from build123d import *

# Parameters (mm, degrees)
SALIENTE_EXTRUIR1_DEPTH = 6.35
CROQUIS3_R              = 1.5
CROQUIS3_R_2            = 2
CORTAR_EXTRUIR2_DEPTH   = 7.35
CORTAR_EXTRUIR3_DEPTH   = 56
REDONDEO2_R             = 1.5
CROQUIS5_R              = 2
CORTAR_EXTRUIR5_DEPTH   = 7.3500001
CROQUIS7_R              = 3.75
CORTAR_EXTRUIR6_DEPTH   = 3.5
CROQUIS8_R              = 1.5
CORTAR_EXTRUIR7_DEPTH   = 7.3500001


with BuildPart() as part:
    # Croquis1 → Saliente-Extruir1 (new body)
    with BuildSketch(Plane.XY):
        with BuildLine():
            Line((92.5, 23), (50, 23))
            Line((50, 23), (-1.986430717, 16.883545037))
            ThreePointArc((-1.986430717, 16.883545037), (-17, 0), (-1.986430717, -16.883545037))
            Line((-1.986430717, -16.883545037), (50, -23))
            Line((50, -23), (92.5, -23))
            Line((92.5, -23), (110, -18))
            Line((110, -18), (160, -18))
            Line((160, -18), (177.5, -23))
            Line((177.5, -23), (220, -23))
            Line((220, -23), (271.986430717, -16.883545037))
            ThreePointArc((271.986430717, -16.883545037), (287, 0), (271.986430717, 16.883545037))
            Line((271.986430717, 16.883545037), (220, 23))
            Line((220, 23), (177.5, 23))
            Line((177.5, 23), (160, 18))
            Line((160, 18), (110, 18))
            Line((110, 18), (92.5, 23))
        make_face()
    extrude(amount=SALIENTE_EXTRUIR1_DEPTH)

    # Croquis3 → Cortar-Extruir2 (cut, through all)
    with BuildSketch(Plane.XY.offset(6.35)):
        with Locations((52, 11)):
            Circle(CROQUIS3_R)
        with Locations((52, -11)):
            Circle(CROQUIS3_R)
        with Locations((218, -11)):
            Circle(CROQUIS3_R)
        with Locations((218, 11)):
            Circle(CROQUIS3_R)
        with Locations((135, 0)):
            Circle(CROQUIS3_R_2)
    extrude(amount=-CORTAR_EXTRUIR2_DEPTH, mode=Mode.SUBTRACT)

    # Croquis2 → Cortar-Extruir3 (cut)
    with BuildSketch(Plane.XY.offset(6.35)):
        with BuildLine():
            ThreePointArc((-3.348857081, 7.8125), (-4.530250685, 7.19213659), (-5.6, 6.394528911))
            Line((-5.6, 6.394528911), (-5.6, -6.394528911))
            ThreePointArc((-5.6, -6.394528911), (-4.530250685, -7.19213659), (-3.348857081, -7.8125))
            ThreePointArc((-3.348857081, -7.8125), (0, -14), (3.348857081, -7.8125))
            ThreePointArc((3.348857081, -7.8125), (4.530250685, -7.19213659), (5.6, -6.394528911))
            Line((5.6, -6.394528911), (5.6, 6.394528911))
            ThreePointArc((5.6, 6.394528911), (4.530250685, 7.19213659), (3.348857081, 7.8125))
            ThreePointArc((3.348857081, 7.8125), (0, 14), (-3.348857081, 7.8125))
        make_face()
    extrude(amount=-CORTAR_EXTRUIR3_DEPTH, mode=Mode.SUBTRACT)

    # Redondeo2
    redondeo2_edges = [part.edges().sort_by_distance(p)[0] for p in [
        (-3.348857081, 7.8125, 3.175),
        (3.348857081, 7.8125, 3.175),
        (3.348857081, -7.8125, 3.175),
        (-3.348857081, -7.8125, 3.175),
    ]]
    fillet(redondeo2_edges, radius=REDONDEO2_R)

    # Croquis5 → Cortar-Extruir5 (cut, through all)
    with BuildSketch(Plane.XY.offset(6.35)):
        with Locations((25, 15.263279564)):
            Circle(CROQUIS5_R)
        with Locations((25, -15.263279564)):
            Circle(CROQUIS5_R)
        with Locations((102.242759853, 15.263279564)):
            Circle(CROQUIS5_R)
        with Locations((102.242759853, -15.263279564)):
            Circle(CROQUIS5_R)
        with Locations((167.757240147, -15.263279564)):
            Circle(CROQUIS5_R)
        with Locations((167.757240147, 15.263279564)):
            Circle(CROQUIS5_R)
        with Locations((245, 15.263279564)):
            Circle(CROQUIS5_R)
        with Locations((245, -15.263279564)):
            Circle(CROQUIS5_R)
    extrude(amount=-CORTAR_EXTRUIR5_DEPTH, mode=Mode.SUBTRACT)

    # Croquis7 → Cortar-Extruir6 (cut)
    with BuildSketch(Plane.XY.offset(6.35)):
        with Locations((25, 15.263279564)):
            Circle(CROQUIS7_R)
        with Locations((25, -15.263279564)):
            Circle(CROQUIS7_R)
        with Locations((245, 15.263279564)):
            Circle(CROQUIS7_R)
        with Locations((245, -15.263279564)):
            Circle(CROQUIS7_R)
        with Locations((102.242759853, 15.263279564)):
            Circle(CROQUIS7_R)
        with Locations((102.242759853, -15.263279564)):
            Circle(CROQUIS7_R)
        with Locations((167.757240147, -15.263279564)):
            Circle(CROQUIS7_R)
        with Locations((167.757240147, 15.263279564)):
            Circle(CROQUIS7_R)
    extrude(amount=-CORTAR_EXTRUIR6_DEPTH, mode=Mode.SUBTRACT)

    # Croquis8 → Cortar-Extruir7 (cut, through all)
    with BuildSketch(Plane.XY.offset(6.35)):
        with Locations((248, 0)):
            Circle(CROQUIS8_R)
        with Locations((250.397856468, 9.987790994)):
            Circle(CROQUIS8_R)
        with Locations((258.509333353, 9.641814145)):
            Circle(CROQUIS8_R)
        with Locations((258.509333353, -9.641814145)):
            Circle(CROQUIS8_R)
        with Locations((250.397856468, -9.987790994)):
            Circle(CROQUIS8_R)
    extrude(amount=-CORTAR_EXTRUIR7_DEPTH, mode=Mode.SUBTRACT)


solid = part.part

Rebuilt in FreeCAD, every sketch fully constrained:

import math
import FreeCAD as App
import Part
import Sketcher
from FreeCAD import Vector
Q = App.Units.Quantity


def edges_at(feature, points):
    """Names of the edges that pass closest to the given points."""
    edges = feature.Shape.Edges
    near = lambda p: min(range(len(edges)), key=lambda i: edges[i].distToShape(Part.Vertex(*p))[0])
    return sorted({f"Edge{near(p) + 1}" for p in points})

doc = App.newDocument("Part")
body = doc.addObject("PartDesign::Body", "Body")

# Sketch on XY plane
sketch1 = doc.addObject("Sketcher::SketchObject", "Sketch")
body.addObject(sketch1)
sketch1.AttachmentSupport = (doc.XY_Plane, [""])
sketch1.MapMode = "FlatFace"
sketch1.addGeometry([
    Part.LineSegment(Vector(92.5, 23, 0), Vector(50, 23, 0)),  # 0
    Part.LineSegment(Vector(50, 23, 0), Vector(-1.986431, 16.883545, 0)),  # 1
    Part.ArcOfCircle(Part.Circle(Vector(0, 0, 0), Vector(0, 0, 1), 17), math.radians(96.710276), math.radians(263.289724)),  # 2
    Part.LineSegment(Vector(-1.986431, -16.883545, 0), Vector(50, -23, 0)),  # 3
    Part.LineSegment(Vector(50, -23, 0), Vector(92.5, -23, 0)),  # 4
    Part.LineSegment(Vector(92.5, -23, 0), Vector(110, -18, 0)),  # 5
    Part.LineSegment(Vector(110, -18, 0), Vector(160, -18, 0)),  # 6
    Part.LineSegment(Vector(160, -18, 0), Vector(177.5, -23, 0)),  # 7
    Part.LineSegment(Vector(177.5, -23, 0), Vector(220, -23, 0)),  # 8
    Part.LineSegment(Vector(220, -23, 0), Vector(271.986431, -16.883545, 0)),  # 9
    Part.ArcOfCircle(Part.Circle(Vector(270, 0, 0), Vector(0, 0, 1), 17), math.radians(-83.289724), math.radians(83.289724)),  # 10
    Part.LineSegment(Vector(271.986431, 16.883545, 0), Vector(220, 23, 0)),  # 11
    Part.LineSegment(Vector(220, 23, 0), Vector(177.5, 23, 0)),  # 12
    Part.LineSegment(Vector(177.5, 23, 0), Vector(160, 18, 0)),  # 13
    Part.LineSegment(Vector(160, 18, 0), Vector(110, 18, 0)),  # 14
    Part.LineSegment(Vector(110, 18, 0), Vector(92.5, 23, 0)),  # 15
], False)
sketch1.addConstraint([
    Sketcher.Constraint("Coincident", 0, 2, 1, 1),
    Sketcher.Constraint("Tangent", 1, 2, 2, 1),
    Sketcher.Constraint("Tangent", 2, 2, 3, 1),
    Sketcher.Constraint("Coincident", 3, 2, 4, 1),
    Sketcher.Constraint("Coincident", 4, 2, 5, 1),
    Sketcher.Constraint("Coincident", 5, 2, 6, 1),
    Sketcher.Constraint("Coincident", 6, 2, 7, 1),
    Sketcher.Constraint("Coincident", 7, 2, 8, 1),
    Sketcher.Constraint("Coincident", 8, 2, 9, 1),
    Sketcher.Constraint("Tangent", 9, 2, 10, 1),
    Sketcher.Constraint("Tangent", 10, 2, 11, 1),
    Sketcher.Constraint("Coincident", 11, 2, 12, 1),
    Sketcher.Constraint("Coincident", 12, 2, 13, 1),
    Sketcher.Constraint("Coincident", 13, 2, 14, 1),
    Sketcher.Constraint("Coincident", 14, 2, 15, 1),
    Sketcher.Constraint("Coincident", 15, 2, 0, 1),
    Sketcher.Constraint("Horizontal", 0),
    Sketcher.Constraint("Horizontal", 4),
    Sketcher.Constraint("Horizontal", 6),
    Sketcher.Constraint("Horizontal", 8),
    Sketcher.Constraint("Horizontal", 12),
    Sketcher.Constraint("Horizontal", 14),
    Sketcher.Constraint("Coincident", 2, 3, -1, 1),
    Sketcher.Constraint("Equal", 2, 10),
    Sketcher.Constraint("Symmetric", 0, 2, 3, 2, -1),
    Sketcher.Constraint("Symmetric", 9, 2, 10, 2, -1),
    Sketcher.Constraint("Symmetric", 7, 2, 12, 2, -1),
    Sketcher.Constraint("Symmetric", 6, 2, 13, 2, -1),
    Sketcher.Constraint("Parallel", 1, 9),
    Sketcher.Constraint("Parallel", 5, 13),
    Sketcher.Constraint("Parallel", 7, 15),
    Sketcher.Constraint("Horizontal", 4, 2, 7, 2),
    Sketcher.Constraint("Vertical", 5, 2, 14, 2),
    Sketcher.Constraint("Equal", 4, 8),
    Sketcher.Constraint("Radius", 2, Q("17 mm")),
    Sketcher.Constraint("DistanceX", 6, 1, 6, 2, Q("50 mm")),
    Sketcher.Constraint("DistanceX", 0, 2, 0, 1, Q("42.5 mm")),
    Sketcher.Constraint("DistanceX", -1, 1, 10, 3, Q("270 mm")),
    Sketcher.Constraint("DistanceX", -1, 1, 0, 2, Q("50 mm")),
    Sketcher.Constraint("DistanceY", -1, 1, 0, 2, Q("23 mm")),
    Sketcher.Constraint("DistanceY", 5, 2, -1, 1, Q("18 mm")),
])
pad1 = doc.addObject("PartDesign::Pad", "Pad")
body.addObject(pad1)
pad1.Profile = sketch1
pad1.Length = 6.35

# Sketch on XY plane
sketch2 = doc.addObject("Sketcher::SketchObject", "Sketch001")
body.addObject(sketch2)
sketch2.AttachmentSupport = (doc.XY_Plane, [""])
sketch2.MapMode = "FlatFace"
sketch2.AttachmentOffset = App.Placement(Vector(0, 0, 6.35), App.Rotation())
sketch2.addGeometry([
    Part.Circle(Vector(52, 11, 0), Vector(0, 0, 1), 1.5),  # 0
    Part.Circle(Vector(52, -11, 0), Vector(0, 0, 1), 1.5),  # 1
    Part.Circle(Vector(218, -11, 0), Vector(0, 0, 1), 1.5),  # 2
    Part.Circle(Vector(218, 11, 0), Vector(0, 0, 1), 1.5),  # 3
    Part.Circle(Vector(135, 0, 0), Vector(0, 0, 1), 2),  # 4
], False)
sketch2.addConstraint([
    Sketcher.Constraint("Equal", 0, 1),
    Sketcher.Constraint("Equal", 1, 2),
    Sketcher.Constraint("Equal", 2, 3),
    Sketcher.Constraint("Symmetric", 0, 3, 1, 3, -1),
    Sketcher.Constraint("Symmetric", 2, 3, 3, 3, -1),
    Sketcher.Constraint("PointOnObject", 4, 3, -1),
    Sketcher.Constraint("Horizontal", 1, 3, 2, 3),
    Sketcher.Constraint("Diameter", 0, Q("3 mm")),
    Sketcher.Constraint("Diameter", 4, Q("4 mm")),
    Sketcher.Constraint("DistanceX", -1, 1, 0, 3, Q("52 mm")),
    Sketcher.Constraint("DistanceY", -1, 1, 0, 3, Q("11 mm")),
    Sketcher.Constraint("DistanceX", -1, 1, 2, 3, Q("218 mm")),
    Sketcher.Constraint("DistanceX", -1, 1, 4, 3, Q("135 mm")),
])
pocket1 = doc.addObject("PartDesign::Pocket", "Pocket")
body.addObject(pocket1)
pocket1.Profile = sketch2
pocket1.Type = "ThroughAll"

# Sketch on XY plane
sketch3 = doc.addObject("Sketcher::SketchObject", "Sketch002")
body.addObject(sketch3)
sketch3.AttachmentSupport = (doc.XY_Plane, [""])
sketch3.MapMode = "FlatFace"
sketch3.AttachmentOffset = App.Placement(Vector(0, 0, 6.35), App.Rotation())
sketch3.addGeometry([
    Part.ArcOfCircle(Part.Circle(Vector(0, 0, 0), Vector(0, 0, 1), 8.5), math.radians(113.202573), math.radians(131.21021)),  # 0
    Part.LineSegment(Vector(-5.6, 6.394529, 0), Vector(-5.6, -6.394529, 0)),  # 1
    Part.ArcOfCircle(Part.Circle(Vector(0, 0, 0), Vector(0, 0, 1), 8.5), math.radians(-131.21021), math.radians(-113.202573)),  # 2
    Part.ArcOfCircle(Part.Circle(Vector(0, -10, 0), Vector(0, 0, 1), 4), math.radians(146.847112), math.radians(393.152888)),  # 3
    Part.ArcOfCircle(Part.Circle(Vector(0, 0, 0), Vector(0, 0, 1), 8.5), math.radians(-66.797427), math.radians(-48.78979)),  # 4
    Part.LineSegment(Vector(5.6, -6.394529, 0), Vector(5.6, 6.394529, 0)),  # 5
    Part.ArcOfCircle(Part.Circle(Vector(0, 0, 0), Vector(0, 0, 1), 8.5), math.radians(48.78979), math.radians(66.797427)),  # 6
    Part.ArcOfCircle(Part.Circle(Vector(0, 10, 0), Vector(0, 0, 1), 4), math.radians(-33.152888), math.radians(213.152888)),  # 7
], False)
sketch3.addConstraint([
    Sketcher.Constraint("Coincident", 0, 2, 1, 1),
    Sketcher.Constraint("Coincident", 1, 2, 2, 1),
    Sketcher.Constraint("Coincident", 2, 2, 3, 1),
    Sketcher.Constraint("Coincident", 3, 2, 4, 1),
    Sketcher.Constraint("Coincident", 4, 2, 5, 1),
    Sketcher.Constraint("Coincident", 5, 2, 6, 1),
    Sketcher.Constraint("Coincident", 6, 2, 7, 1),
    Sketcher.Constraint("Coincident", 7, 2, 0, 1),
    Sketcher.Constraint("Vertical", 1),
    Sketcher.Constraint("Vertical", 5),
    Sketcher.Constraint("Coincident", 0, 3, -1, 1),
    Sketcher.Constraint("Coincident", 2, 3, -1, 1),
    Sketcher.Constraint("Coincident", 4, 3, -1, 1),
    Sketcher.Constraint("Coincident", 6, 3, -1, 1),
    Sketcher.Constraint("Equal", 0, 2),
    Sketcher.Constraint("Equal", 2, 4),
    Sketcher.Constraint("Equal", 4, 6),
    Sketcher.Constraint("Equal", 3, 7),
    Sketcher.Constraint("Symmetric", 3, 3, 7, 3, -1, 1),
    Sketcher.Constraint("PointOnObject", 3, 3, -2),
    Sketcher.Constraint("Horizontal", 1, 2, 4, 2),
    Sketcher.Constraint("Radius", 3, Q("4 mm")),
    Sketcher.Constraint("Radius", 0, Q("8.5 mm")),
    Sketcher.Constraint("DistanceY", 3, 3, -1, 1, Q("10 mm")),
    Sketcher.Constraint("DistanceX", 0, 2, -1, 1, Q("5.6 mm")),
])
pocket2 = doc.addObject("PartDesign::Pocket", "Pocket001")
body.addObject(pocket2)
pocket2.Profile = sketch3
pocket2.Length = 56
doc.recompute()

fillet = doc.addObject("PartDesign::Fillet", "Fillet")
body.addObject(fillet)
fillet.Base = (pocket2, edges_at(pocket2, [
    (-3.349, 7.812, 3.175),
    (3.349, 7.812, 3.175),
    (3.349, -7.812, 3.175),
    (-3.349, -7.812, 3.175),
]))
fillet.Radius = 1.5

# Sketch on XY plane
sketch4 = doc.addObject("Sketcher::SketchObject", "Sketch003")
body.addObject(sketch4)
sketch4.AttachmentSupport = (doc.XY_Plane, [""])
sketch4.MapMode = "FlatFace"
sketch4.AttachmentOffset = App.Placement(Vector(0, 0, 6.35), App.Rotation())
sketch4.addGeometry([
    Part.Circle(Vector(25, 15.26328, 0), Vector(0, 0, 1), 2),  # 0
    Part.Circle(Vector(25, -15.26328, 0), Vector(0, 0, 1), 2),  # 1
    Part.Circle(Vector(102.24276, 15.26328, 0), Vector(0, 0, 1), 2),  # 2
    Part.Circle(Vector(102.24276, -15.26328, 0), Vector(0, 0, 1), 2),  # 3
    Part.Circle(Vector(167.75724, -15.26328, 0), Vector(0, 0, 1), 2),  # 4
    Part.Circle(Vector(167.75724, 15.26328, 0), Vector(0, 0, 1), 2),  # 5
    Part.Circle(Vector(245, 15.26328, 0), Vector(0, 0, 1), 2),  # 6
    Part.Circle(Vector(245, -15.26328, 0), Vector(0, 0, 1), 2),  # 7
], False)
sketch4.addConstraint([
    Sketcher.Constraint("Equal", 0, 1),
    Sketcher.Constraint("Equal", 1, 2),
    Sketcher.Constraint("Equal", 2, 3),
    Sketcher.Constraint("Equal", 3, 4),
    Sketcher.Constraint("Equal", 4, 5),
    Sketcher.Constraint("Equal", 5, 6),
    Sketcher.Constraint("Equal", 6, 7),
    Sketcher.Constraint("Symmetric", 0, 3, 1, 3, -1),
    Sketcher.Constraint("Symmetric", 2, 3, 3, 3, -1),
    Sketcher.Constraint("Symmetric", 4, 3, 5, 3, -1),
    Sketcher.Constraint("Symmetric", 6, 3, 7, 3, -1),
    Sketcher.Constraint("Horizontal", 0, 3, 2, 3),
    Sketcher.Constraint("Horizontal", 3, 3, 4, 3),
    Sketcher.Constraint("Horizontal", 5, 3, 6, 3),
    Sketcher.Constraint("Diameter", 0, Q("4 mm")),
    Sketcher.Constraint("DistanceX", -1, 1, 0, 3, Q("25 mm")),
    Sketcher.Constraint("DistanceX", -1, 1, 6, 3, Q("245 mm")),
    Sketcher.Constraint("DistanceY", -1, 1, 0, 3, Q("15.26328 mm")),
    Sketcher.Constraint("DistanceX", -1, 1, 2, 3, Q("102.24276 mm")),
    Sketcher.Constraint("DistanceX", -1, 1, 4, 3, Q("167.75724 mm")),
])
pocket3 = doc.addObject("PartDesign::Pocket", "Pocket002")
body.addObject(pocket3)
pocket3.Profile = sketch4
pocket3.Type = "ThroughAll"

# Sketch on XY plane
sketch5 = doc.addObject("Sketcher::SketchObject", "Sketch004")
body.addObject(sketch5)
sketch5.AttachmentSupport = (doc.XY_Plane, [""])
sketch5.MapMode = "FlatFace"
sketch5.AttachmentOffset = App.Placement(Vector(0, 0, 6.35), App.Rotation())
sketch5.addGeometry([
    Part.Circle(Vector(25, 15.26328, 0), Vector(0, 0, 1), 3.75),  # 0
    Part.Circle(Vector(25, -15.26328, 0), Vector(0, 0, 1), 3.75),  # 1
    Part.Circle(Vector(245, 15.26328, 0), Vector(0, 0, 1), 3.75),  # 2
    Part.Circle(Vector(245, -15.26328, 0), Vector(0, 0, 1), 3.75),  # 3
    Part.Circle(Vector(102.24276, 15.26328, 0), Vector(0, 0, 1), 3.75),  # 4
    Part.Circle(Vector(102.24276, -15.26328, 0), Vector(0, 0, 1), 3.75),  # 5
    Part.Circle(Vector(167.75724, -15.26328, 0), Vector(0, 0, 1), 3.75),  # 6
    Part.Circle(Vector(167.75724, 15.26328, 0), Vector(0, 0, 1), 3.75),  # 7
], False)
sketch5.addConstraint([
    Sketcher.Constraint("Equal", 0, 1),
    Sketcher.Constraint("Equal", 1, 2),
    Sketcher.Constraint("Equal", 2, 3),
    Sketcher.Constraint("Equal", 3, 4),
    Sketcher.Constraint("Equal", 4, 5),
    Sketcher.Constraint("Equal", 5, 6),
    Sketcher.Constraint("Equal", 6, 7),
    Sketcher.Constraint("Symmetric", 0, 3, 1, 3, -1),
    Sketcher.Constraint("Symmetric", 2, 3, 3, 3, -1),
    Sketcher.Constraint("Symmetric", 4, 3, 5, 3, -1),
    Sketcher.Constraint("Symmetric", 6, 3, 7, 3, -1),
    Sketcher.Constraint("Horizontal", 0, 3, 2, 3),
    Sketcher.Constraint("Horizontal", 2, 3, 4, 3),
    Sketcher.Constraint("Horizontal", 5, 3, 6, 3),
    Sketcher.Constraint("Diameter", 0, Q("7.5 mm")),
    Sketcher.Constraint("DistanceX", -1, 1, 0, 3, Q("25 mm")),
    Sketcher.Constraint("DistanceX", -1, 1, 2, 3, Q("245 mm")),
    Sketcher.Constraint("DistanceY", -1, 1, 0, 3, Q("15.26328 mm")),
    Sketcher.Constraint("DistanceX", -1, 1, 4, 3, Q("102.24276 mm")),
    Sketcher.Constraint("DistanceX", -1, 1, 6, 3, Q("167.75724 mm")),
])
pocket4 = doc.addObject("PartDesign::Pocket", "Pocket003")
body.addObject(pocket4)
pocket4.Profile = sketch5
pocket4.Length = 3.5

# Sketch on XY plane
sketch6 = doc.addObject("Sketcher::SketchObject", "Sketch005")
body.addObject(sketch6)
sketch6.AttachmentSupport = (doc.XY_Plane, [""])
sketch6.MapMode = "FlatFace"
sketch6.AttachmentOffset = App.Placement(Vector(0, 0, 6.35), App.Rotation())
sketch6.addGeometry([
    Part.Circle(Vector(248, 0, 0), Vector(0, 0, 1), 1.5),  # 0
    Part.Circle(Vector(250.397856, 9.987791, 0), Vector(0, 0, 1), 1.5),  # 1
    Part.Circle(Vector(258.509333, 9.641814, 0), Vector(0, 0, 1), 1.5),  # 2
    Part.Circle(Vector(258.509333, -9.641814, 0), Vector(0, 0, 1), 1.5),  # 3
    Part.Circle(Vector(250.397856, -9.987791, 0), Vector(0, 0, 1), 1.5),  # 4
], False)
sketch6.addConstraint([
    Sketcher.Constraint("Equal", 0, 1),
    Sketcher.Constraint("Equal", 1, 2),
    Sketcher.Constraint("Equal", 2, 3),
    Sketcher.Constraint("Equal", 3, 4),
    Sketcher.Constraint("Symmetric", 2, 3, 3, 3, -1),
    Sketcher.Constraint("Symmetric", 1, 3, 4, 3, -1),
    Sketcher.Constraint("PointOnObject", 0, 3, -1),
    Sketcher.Constraint("Diameter", 0, Q("3 mm")),
    Sketcher.Constraint("DistanceX", -1, 1, 0, 3, Q("248 mm")),
    Sketcher.Constraint("DistanceY", -1, 1, 1, 3, Q("9.987791 mm")),
    Sketcher.Constraint("DistanceY", 3, 3, 2, 3, Q("19.283628 mm")),
    Sketcher.Constraint("DistanceX", -1, 1, 1, 3, Q("250.397856 mm")),
    Sketcher.Constraint("DistanceX", -1, 1, 2, 3, Q("258.509333 mm")),
])
pocket5 = doc.addObject("PartDesign::Pocket", "Pocket004")
body.addObject(pocket5)
pocket5.Profile = sketch6
pocket5.Type = "ThroughAll"

doc.recompute()
